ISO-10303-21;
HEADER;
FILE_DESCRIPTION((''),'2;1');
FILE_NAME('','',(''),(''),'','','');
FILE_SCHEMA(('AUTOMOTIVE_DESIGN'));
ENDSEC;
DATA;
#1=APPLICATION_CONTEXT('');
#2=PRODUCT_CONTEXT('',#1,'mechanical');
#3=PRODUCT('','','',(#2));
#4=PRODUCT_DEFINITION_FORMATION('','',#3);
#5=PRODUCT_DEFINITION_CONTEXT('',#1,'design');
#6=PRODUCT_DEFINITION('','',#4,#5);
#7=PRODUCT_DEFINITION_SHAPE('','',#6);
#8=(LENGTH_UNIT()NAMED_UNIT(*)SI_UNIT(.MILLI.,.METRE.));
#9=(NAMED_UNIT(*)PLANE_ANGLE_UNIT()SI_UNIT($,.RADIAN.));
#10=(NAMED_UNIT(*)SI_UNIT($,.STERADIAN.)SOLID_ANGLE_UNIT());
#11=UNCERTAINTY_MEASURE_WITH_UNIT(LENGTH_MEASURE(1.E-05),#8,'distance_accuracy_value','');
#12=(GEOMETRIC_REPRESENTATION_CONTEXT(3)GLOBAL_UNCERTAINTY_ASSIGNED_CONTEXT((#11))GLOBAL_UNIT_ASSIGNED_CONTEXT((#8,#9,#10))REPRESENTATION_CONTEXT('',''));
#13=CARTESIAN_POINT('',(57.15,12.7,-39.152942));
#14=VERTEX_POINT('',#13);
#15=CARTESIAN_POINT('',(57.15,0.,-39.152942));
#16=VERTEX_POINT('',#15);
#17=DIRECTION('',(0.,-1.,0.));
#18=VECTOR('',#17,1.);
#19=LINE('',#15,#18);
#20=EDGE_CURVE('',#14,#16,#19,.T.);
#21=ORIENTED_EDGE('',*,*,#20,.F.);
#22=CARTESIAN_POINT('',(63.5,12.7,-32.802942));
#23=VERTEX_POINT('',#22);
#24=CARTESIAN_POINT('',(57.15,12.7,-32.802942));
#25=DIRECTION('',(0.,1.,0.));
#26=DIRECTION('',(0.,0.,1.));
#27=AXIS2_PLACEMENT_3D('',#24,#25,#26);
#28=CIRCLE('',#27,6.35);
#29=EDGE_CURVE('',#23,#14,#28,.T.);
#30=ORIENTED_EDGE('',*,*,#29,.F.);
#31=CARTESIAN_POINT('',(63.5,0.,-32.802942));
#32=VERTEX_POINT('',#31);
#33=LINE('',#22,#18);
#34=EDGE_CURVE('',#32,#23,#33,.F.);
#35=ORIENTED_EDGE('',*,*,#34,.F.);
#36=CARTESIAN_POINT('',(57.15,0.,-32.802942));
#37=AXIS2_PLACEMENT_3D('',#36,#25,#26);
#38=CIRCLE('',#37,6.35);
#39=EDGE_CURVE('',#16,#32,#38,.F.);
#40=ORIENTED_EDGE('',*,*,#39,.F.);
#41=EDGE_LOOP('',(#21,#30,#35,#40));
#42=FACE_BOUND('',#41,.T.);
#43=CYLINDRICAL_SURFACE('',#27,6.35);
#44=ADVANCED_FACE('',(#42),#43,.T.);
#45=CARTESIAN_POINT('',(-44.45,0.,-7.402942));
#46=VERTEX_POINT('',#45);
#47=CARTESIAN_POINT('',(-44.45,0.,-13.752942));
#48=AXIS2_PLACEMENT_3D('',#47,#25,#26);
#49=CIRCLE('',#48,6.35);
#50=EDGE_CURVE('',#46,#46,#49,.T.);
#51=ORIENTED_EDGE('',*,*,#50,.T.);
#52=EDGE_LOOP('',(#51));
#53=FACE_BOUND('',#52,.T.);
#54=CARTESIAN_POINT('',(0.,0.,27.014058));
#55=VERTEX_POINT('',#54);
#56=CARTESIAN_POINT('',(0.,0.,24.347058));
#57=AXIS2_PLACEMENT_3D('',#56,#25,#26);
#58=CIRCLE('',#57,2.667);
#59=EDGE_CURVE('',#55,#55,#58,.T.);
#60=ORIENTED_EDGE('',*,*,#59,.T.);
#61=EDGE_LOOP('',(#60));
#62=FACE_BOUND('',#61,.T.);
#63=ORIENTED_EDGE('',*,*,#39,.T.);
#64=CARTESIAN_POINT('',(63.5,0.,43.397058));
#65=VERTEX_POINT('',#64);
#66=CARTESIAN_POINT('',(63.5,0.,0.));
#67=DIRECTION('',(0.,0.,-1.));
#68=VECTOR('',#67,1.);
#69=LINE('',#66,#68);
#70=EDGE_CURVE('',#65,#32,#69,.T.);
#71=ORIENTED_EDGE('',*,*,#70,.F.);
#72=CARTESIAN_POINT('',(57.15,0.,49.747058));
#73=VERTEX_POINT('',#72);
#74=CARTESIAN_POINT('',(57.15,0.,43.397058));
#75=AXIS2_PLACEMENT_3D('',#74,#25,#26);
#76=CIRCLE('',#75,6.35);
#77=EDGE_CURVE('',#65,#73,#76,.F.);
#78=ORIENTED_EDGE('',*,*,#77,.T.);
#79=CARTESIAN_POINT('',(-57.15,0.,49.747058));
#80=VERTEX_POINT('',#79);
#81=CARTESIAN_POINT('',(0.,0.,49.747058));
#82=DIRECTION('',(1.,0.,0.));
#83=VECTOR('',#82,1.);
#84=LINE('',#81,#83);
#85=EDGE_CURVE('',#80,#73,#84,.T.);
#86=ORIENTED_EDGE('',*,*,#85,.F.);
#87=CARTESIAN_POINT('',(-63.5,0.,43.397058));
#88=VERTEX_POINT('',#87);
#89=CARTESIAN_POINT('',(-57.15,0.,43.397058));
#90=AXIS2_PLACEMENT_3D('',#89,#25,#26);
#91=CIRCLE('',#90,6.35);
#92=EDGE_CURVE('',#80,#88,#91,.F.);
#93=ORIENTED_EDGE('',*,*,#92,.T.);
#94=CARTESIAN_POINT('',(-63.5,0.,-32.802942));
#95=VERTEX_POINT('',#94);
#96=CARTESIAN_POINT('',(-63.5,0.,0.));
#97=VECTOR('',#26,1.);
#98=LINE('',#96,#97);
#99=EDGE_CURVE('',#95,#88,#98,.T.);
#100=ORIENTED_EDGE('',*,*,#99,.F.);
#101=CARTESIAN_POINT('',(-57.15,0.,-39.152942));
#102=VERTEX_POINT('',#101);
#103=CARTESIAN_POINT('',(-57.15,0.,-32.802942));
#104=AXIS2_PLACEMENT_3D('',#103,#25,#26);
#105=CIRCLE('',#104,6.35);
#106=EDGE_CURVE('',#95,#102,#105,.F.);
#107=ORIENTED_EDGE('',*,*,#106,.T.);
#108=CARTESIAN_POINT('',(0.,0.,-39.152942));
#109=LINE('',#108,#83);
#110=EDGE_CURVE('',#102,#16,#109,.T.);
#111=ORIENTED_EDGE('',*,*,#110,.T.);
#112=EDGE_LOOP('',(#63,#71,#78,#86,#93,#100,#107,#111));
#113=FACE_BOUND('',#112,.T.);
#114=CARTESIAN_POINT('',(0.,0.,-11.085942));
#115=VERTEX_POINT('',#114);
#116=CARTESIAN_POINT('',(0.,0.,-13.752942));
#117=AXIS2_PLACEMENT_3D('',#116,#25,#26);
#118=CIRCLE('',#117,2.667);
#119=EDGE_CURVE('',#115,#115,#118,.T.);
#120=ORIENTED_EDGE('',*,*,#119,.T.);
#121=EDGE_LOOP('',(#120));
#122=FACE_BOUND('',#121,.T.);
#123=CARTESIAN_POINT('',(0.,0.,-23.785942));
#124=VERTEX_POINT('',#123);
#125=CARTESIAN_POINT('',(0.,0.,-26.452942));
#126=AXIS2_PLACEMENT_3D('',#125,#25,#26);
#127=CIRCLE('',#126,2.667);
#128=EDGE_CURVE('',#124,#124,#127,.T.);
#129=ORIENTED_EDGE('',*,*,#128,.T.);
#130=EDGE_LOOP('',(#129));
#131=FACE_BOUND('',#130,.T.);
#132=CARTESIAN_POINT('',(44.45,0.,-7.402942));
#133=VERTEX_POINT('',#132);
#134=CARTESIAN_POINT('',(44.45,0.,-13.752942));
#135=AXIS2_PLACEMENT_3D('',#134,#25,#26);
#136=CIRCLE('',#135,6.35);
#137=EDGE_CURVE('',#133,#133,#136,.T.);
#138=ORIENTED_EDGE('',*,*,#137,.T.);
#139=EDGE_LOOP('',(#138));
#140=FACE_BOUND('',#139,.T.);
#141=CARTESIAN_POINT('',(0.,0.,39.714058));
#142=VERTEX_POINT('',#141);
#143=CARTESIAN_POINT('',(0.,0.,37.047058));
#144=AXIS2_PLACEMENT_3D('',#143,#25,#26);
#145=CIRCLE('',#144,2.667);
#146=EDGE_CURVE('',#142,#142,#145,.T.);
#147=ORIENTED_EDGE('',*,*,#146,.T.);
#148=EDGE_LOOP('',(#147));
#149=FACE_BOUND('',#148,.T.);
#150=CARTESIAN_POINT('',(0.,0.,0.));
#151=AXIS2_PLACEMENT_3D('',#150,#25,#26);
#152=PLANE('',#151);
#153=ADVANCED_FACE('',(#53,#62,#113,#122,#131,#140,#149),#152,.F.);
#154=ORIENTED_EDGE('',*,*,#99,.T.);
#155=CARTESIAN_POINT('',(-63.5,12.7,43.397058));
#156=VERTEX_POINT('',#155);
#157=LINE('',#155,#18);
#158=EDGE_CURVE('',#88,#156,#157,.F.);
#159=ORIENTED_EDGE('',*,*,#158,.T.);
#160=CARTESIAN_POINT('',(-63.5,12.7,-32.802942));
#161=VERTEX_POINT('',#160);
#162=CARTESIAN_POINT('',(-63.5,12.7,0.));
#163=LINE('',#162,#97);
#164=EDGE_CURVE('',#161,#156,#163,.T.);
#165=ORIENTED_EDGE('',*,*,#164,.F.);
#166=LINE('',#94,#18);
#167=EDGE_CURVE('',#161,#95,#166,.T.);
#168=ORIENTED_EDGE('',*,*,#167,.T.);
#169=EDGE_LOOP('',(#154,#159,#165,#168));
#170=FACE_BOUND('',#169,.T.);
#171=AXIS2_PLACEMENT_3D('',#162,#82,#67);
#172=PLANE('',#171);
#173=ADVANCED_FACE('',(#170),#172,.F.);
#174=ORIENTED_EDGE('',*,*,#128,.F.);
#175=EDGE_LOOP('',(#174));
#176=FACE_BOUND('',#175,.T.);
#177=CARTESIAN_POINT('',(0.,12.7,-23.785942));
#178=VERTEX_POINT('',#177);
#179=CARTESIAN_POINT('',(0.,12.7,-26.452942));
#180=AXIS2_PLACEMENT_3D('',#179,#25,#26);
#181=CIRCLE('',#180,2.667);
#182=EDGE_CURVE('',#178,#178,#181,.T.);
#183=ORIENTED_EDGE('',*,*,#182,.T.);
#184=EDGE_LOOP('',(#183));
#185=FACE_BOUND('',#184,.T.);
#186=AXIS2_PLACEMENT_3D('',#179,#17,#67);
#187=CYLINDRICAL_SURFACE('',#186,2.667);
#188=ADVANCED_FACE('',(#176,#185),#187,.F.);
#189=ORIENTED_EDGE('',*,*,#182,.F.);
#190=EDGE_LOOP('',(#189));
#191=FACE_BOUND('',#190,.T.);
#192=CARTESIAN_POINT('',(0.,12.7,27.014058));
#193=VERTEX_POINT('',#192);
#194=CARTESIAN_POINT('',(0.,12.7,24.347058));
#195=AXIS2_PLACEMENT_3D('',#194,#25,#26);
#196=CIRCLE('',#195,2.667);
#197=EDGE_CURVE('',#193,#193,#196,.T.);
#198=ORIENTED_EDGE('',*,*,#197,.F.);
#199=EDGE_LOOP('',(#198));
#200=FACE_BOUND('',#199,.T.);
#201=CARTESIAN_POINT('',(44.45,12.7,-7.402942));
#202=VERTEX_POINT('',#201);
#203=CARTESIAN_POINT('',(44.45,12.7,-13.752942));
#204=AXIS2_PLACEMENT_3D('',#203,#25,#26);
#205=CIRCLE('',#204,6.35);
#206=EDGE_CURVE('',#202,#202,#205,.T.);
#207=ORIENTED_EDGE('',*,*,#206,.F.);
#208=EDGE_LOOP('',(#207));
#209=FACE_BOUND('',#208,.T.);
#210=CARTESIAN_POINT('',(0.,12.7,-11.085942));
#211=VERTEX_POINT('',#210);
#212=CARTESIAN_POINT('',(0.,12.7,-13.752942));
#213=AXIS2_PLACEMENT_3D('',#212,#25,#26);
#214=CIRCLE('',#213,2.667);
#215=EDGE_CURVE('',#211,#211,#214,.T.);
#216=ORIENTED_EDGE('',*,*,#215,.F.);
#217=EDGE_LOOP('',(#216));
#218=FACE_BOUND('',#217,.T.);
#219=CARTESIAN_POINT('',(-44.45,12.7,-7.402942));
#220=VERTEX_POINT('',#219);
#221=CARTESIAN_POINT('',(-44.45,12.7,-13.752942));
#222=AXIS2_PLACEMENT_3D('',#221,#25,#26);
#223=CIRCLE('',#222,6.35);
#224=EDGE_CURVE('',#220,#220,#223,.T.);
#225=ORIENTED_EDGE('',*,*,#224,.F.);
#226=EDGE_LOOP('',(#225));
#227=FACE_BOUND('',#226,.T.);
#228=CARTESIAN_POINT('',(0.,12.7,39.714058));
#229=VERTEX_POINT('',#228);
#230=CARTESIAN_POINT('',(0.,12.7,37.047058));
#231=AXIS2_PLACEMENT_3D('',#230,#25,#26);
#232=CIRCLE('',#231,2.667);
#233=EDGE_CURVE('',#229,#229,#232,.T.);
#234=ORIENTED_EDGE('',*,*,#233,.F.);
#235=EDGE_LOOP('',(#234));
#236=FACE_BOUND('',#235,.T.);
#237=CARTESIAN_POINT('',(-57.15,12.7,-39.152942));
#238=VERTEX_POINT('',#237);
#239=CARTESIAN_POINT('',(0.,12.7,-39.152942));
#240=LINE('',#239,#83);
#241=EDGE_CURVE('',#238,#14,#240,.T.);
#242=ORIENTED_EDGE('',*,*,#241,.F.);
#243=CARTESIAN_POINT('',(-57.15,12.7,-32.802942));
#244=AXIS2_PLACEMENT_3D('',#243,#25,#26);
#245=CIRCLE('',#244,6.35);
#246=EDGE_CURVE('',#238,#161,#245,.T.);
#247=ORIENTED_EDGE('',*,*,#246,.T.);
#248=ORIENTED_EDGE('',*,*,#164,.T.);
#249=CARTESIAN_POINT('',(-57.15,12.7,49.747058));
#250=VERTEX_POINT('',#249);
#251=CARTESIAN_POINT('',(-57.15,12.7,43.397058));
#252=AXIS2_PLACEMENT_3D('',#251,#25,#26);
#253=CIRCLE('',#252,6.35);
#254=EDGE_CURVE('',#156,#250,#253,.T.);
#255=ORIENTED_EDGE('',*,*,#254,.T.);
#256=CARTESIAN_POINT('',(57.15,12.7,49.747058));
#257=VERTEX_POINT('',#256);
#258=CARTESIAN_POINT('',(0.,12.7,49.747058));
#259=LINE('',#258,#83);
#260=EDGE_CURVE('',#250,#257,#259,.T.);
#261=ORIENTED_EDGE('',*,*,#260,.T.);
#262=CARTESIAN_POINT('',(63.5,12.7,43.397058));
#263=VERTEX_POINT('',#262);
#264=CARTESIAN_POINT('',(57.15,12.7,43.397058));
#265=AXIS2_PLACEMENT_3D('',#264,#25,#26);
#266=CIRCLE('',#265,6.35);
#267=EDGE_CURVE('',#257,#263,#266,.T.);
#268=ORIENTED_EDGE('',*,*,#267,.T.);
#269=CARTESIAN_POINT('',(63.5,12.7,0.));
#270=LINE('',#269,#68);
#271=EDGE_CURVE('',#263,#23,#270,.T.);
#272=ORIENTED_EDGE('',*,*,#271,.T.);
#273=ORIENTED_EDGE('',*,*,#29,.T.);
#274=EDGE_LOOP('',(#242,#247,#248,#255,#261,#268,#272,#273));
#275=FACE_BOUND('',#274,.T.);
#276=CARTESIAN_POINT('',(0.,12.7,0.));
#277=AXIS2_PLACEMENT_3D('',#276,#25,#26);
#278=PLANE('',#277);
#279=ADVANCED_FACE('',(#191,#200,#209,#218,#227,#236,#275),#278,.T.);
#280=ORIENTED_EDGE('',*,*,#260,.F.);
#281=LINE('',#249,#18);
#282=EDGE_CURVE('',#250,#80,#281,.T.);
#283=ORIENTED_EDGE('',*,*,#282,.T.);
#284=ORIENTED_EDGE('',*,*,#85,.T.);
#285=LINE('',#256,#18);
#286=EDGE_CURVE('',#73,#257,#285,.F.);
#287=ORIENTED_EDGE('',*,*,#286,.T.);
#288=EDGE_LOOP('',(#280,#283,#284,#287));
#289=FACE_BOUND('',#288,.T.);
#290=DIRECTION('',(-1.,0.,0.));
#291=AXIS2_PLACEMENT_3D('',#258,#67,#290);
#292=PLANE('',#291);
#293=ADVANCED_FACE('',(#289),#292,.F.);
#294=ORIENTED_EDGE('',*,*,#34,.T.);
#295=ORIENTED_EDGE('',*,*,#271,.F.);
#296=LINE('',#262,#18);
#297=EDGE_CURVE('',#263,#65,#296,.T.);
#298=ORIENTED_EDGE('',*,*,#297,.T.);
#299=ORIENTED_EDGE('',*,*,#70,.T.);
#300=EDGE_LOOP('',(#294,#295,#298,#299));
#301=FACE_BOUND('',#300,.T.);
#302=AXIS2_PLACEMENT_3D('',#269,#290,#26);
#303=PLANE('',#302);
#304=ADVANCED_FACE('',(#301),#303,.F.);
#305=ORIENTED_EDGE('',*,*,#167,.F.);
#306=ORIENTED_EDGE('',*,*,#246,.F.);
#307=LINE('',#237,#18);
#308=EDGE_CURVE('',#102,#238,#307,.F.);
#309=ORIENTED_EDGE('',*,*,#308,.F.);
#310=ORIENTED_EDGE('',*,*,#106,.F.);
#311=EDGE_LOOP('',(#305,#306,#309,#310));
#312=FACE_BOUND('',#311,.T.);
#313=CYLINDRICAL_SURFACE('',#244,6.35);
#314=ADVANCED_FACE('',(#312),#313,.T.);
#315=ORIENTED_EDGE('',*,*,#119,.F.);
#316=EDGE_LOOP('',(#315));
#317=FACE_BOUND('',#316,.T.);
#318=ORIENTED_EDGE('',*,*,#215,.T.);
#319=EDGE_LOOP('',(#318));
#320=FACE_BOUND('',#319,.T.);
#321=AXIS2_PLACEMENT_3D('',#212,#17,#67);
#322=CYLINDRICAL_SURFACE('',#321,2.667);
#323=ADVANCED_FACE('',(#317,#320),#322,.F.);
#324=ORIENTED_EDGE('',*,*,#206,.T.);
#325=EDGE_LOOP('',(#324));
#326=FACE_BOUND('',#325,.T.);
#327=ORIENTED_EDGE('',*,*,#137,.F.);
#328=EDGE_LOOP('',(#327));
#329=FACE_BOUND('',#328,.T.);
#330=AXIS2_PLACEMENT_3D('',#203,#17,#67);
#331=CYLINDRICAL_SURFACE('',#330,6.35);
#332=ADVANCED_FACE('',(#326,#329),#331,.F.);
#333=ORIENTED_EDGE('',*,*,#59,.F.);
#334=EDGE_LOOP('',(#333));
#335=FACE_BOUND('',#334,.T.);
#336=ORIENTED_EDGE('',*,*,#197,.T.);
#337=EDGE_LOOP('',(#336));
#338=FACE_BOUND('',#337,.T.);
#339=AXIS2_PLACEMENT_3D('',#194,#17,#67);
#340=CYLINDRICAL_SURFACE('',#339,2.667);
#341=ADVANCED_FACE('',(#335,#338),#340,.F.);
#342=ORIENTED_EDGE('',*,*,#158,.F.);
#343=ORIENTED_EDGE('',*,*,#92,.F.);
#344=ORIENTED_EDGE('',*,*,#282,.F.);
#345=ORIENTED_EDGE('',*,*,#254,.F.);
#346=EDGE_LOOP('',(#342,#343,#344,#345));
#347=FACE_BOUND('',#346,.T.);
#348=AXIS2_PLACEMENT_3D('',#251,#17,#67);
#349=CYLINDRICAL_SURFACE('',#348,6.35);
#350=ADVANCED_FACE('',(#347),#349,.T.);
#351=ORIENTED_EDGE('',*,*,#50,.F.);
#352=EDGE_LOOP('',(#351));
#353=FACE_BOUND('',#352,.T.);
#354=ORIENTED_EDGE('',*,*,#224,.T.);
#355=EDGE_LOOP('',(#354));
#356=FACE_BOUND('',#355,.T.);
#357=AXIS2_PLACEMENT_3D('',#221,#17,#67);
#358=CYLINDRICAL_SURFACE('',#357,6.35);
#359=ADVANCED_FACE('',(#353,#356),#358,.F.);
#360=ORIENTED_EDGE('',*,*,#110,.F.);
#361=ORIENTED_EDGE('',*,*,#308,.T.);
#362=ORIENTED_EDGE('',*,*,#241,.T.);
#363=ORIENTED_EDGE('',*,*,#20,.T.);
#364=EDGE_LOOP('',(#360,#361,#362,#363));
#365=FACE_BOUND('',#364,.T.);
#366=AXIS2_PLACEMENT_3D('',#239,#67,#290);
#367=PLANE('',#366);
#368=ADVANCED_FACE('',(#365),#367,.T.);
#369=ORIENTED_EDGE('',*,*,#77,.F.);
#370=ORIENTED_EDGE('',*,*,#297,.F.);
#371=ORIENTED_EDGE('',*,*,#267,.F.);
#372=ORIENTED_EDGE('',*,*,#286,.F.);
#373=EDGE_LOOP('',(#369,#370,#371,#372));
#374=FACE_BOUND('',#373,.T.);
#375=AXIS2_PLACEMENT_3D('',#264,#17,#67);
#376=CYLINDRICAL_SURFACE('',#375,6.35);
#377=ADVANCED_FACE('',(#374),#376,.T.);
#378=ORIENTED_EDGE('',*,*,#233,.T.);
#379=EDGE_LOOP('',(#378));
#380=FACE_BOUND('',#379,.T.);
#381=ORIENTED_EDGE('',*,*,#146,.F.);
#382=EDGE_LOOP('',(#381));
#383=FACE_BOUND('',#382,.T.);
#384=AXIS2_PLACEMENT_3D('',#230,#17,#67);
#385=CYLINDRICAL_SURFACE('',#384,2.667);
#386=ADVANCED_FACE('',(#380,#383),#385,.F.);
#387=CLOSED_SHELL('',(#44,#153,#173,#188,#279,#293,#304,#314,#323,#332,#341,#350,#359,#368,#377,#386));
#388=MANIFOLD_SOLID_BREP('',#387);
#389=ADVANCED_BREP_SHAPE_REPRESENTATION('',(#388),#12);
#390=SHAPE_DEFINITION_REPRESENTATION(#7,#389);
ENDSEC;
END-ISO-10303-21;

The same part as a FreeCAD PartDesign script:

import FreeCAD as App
import Part
import Sketcher
from FreeCAD import Vector
Q = App.Units.Quantity


def edges_at(feature, points):
    """Names of the edges that pass closest to the given points."""
    edges = feature.Shape.Edges
    near = lambda p: min(range(len(edges)), key=lambda i: edges[i].distToShape(Part.Vertex(*p))[0])
    return sorted({f"Edge{near(p) + 1}" for p in points})


def add_polygon(sketch, points):
    """Adds a closed chain of lines whose ends are joined by coincident constraints."""
    first, n = sketch.GeometryCount, len(points)
    for a, b in zip(points, points[1:] + points[:1]):
        sketch.addGeometry(Part.LineSegment(App.Vector(*a, 0), App.Vector(*b, 0)), False)
    for i in range(n):
        sketch.addConstraint(Sketcher.Constraint("Coincident", first + i, 2, first + (i + 1) % n, 1))

doc = App.newDocument("Part")
body = doc.addObject("PartDesign::Body", "Body")

# Sketch on XZ plane
sketch1 = body.newObject("Sketcher::SketchObject", "Sketch")
sketch1.AttachmentSupport = (doc.getObject("XZ_Plane"), [""])
sketch1.MapMode = "FlatFace"
add_polygon(sketch1, [(-63.5, -39.152942), (-63.5, 49.747058), (63.5, 49.747058), (63.5, -39.152942)])  # lines 0-3
sketch1.addGeometry(Part.Circle(Vector(0, 37.047058, 0), Vector(0, 0, 1), 2.667), False)  # 4
sketch1.addGeometry(Part.Circle(Vector(0, 24.347058, 0), Vector(0, 0, 1), 2.667), False)  # 5
sketch1.addGeometry(Part.Circle(Vector(-44.45, -13.752942, 0), Vector(0, 0, 1), 6.35), False)  # 6
sketch1.addGeometry(Part.Circle(Vector(0, -13.752942, 0), Vector(0, 0, 1), 2.667), False)  # 7
sketch1.addGeometry(Part.Circle(Vector(0, -26.452942, 0), Vector(0, 0, 1), 2.667), False)  # 8
sketch1.addGeometry(Part.Circle(Vector(44.45, -13.752942, 0), Vector(0, 0, 1), 6.35), False)  # 9
sketch1.addConstraint([
    Sketcher.Constraint("Vertical", 0),
    Sketcher.Constraint("Horizontal", 1),
    Sketcher.Constraint("Vertical", 2),
    Sketcher.Constraint("Horizontal", 3),
    Sketcher.Constraint("Equal", 4, 5),
    Sketcher.Constraint("Equal", 5, 7),
    Sketcher.Constraint("Equal", 7, 8),
    Sketcher.Constraint("Equal", 6, 9),
    Sketcher.Constraint("Symmetric", 6, 3, 9, 3, -2),
    Sketcher.Constraint("PointOnObject", 4, 3, -2),
    Sketcher.Constraint("PointOnObject", 5, 3, -2),
    Sketcher.Constraint("PointOnObject", 7, 3, -2),
    Sketcher.Constraint("PointOnObject", 8, 3, -2),
    Sketcher.Constraint("Horizontal", 6, 3, 7, 3),
    Sketcher.Constraint("Diameter", 6, Q("0.5 in")),
    Sketcher.Constraint("Diameter", 4, Q("0.21 in")),
    Sketcher.Constraint("DistanceX", 1, 1, 1, 2, Q("5 in")),
    Sketcher.Constraint("DistanceY", 0, 1, 0, 2, Q("3.5 in")),
    Sketcher.Constraint("DistanceY", 6, 3, 4, 3, Q("2 in")),
    Sketcher.Constraint("DistanceY", 8, 3, 5, 3, Q("2 in")),
    Sketcher.Constraint("DistanceY", 5, 3, 0, 2, Q("1 in")),
    Sketcher.Constraint("DistanceY", 2, 2, 9, 3, Q("1 in")),
    Sketcher.Constraint("DistanceX", 0, 2, -1, 1, Q("2.5 in")),
    Sketcher.Constraint("DistanceX", 6, 3, 9, 3, Q("3.5 in")),
    Sketcher.Constraint("DistanceY", -1, 1, 4, 3, Q("37.047058 mm")),
])
pad1 = body.newObject("PartDesign::Pad", "Pad")
pad1.Profile = sketch1
pad1.Length = Q("0.5 in")
pad1.Reversed = True
doc.recompute()

fillet = body.newObject("PartDesign::Fillet", "Fillet")
fillet.Base = (pad1, edges_at(pad1, [
    (-63.5, 6.35, 49.747),
    (-63.5, 6.35, -39.153),
    (63.5, 6.35, -39.153),
    (63.5, 6.35, 49.747),
]))
fillet.Radius = Q("0.25 in")

doc.recompute()
